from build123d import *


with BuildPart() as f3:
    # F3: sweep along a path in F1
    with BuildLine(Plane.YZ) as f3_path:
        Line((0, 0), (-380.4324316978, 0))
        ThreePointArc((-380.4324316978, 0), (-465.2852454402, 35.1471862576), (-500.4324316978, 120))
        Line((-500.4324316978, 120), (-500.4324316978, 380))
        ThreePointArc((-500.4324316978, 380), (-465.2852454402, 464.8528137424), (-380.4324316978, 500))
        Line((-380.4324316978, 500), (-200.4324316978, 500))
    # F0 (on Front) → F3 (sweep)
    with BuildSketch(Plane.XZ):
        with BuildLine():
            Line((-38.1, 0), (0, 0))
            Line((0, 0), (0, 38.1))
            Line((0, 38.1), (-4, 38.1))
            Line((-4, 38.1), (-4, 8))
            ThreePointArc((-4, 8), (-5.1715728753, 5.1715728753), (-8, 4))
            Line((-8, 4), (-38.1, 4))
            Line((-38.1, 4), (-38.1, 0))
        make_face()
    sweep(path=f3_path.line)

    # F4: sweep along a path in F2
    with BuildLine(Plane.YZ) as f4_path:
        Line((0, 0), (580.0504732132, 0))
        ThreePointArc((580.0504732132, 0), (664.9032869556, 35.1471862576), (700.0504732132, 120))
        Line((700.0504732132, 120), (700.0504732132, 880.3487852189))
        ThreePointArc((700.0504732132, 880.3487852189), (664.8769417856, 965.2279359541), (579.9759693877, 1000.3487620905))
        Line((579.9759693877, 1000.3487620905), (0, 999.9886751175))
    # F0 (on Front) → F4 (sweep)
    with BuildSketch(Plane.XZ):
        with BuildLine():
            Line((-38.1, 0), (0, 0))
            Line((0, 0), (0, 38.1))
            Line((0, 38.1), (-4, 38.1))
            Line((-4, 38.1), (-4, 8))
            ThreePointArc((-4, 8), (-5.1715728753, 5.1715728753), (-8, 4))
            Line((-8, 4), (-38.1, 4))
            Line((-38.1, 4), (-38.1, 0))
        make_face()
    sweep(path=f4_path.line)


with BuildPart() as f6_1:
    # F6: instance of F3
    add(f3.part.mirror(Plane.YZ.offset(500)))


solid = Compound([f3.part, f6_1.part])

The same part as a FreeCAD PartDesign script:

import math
import FreeCAD as App
import Part
import Sketcher
from FreeCAD import Vector

doc = App.newDocument("Part")
body = doc.addObject("PartDesign::Body", "Body")

# Sketch on XZ plane
sketch1 = body.newObject("Sketcher::SketchObject", "Sketch")
sketch1.AttachmentSupport = (doc.getObject("XZ_Plane"), [""])
sketch1.MapMode = "FlatFace"
sketch1.addGeometry([
    Part.LineSegment(Vector(-38.1, 0, 0), Vector(0, 0, 0)),  # 0
    Part.LineSegment(Vector(0, 0, 0), Vector(0, 38.1, 0)),  # 1
    Part.LineSegment(Vector(0, 38.1, 0), Vector(-4, 38.1, 0)),  # 2
    Part.LineSegment(Vector(-4, 38.1, 0), Vector(-4, 8, 0)),  # 3
    Part.ArcOfCircle(Part.Circle(Vector(-8, 8, 0), Vector(0, 0, 1), 4), math.radians(-90), math.radians(0)),  # 4
    Part.LineSegment(Vector(-8, 4, 0), Vector(-38.1, 4, 0)),  # 5
    Part.LineSegment(Vector(-38.1, 4, 0), Vector(-38.1, 0, 0)),  # 6
], False)
sketch1.addConstraint([
    Sketcher.Constraint("Coincident", 0, 2, 1, 1),
    Sketcher.Constraint("Coincident", 1, 2, 2, 1),
    Sketcher.Constraint("Coincident", 2, 2, 3, 1),
    Sketcher.Constraint("Tangent", 3, 2, 4, 2),
    Sketcher.Constraint("Tangent", 4, 1, 5, 1),
    Sketcher.Constraint("Coincident", 5, 2, 6, 1),
    Sketcher.Constraint("Coincident", 6, 2, 0, 1),
    Sketcher.Constraint("Horizontal", 0),
    Sketcher.Constraint("Vertical", 1),
    Sketcher.Constraint("Horizontal", 2),
    Sketcher.Constraint("Vertical", 3),
    Sketcher.Constraint("Horizontal", 5),
    Sketcher.Constraint("Vertical", 6),
    Sketcher.Constraint("Coincident", 0, 2, -1, 1),
    Sketcher.Constraint("Equal", 0, 1),
    Sketcher.Constraint("Equal", 5, 3),
    Sketcher.Constraint("Radius", 4, 4.0),
    Sketcher.Constraint("DistanceX", 2, 2, 2, 1, 4.0),
    Sketcher.Constraint("DistanceX", 0, 1, 0, 2, 38.1),
])

# Sketch on YZ plane
sketch2 = body.newObject("Sketcher::SketchObject", "Sketch001")
sketch2.AttachmentSupport = (doc.getObject("YZ_Plane"), [""])
sketch2.MapMode = "FlatFace"
sketch2.addGeometry([
    Part.LineSegment(Vector(0, 0, 0), Vector(-380, 0, 0)),  # 0
    Part.ArcOfCircle(Part.Circle(Vector(-380, 120, 0), Vector(0, 0, 1), 120), math.radians(180), math.radians(270)),  # 1
    Part.LineSegment(Vector(-500, 120, 0), Vector(-500, 380, 0)),  # 2
    Part.ArcOfCircle(Part.Circle(Vector(-380, 380, 0), Vector(0, 0, 1), 120), math.radians(90), math.radians(180)),  # 3
    Part.LineSegment(Vector(-380, 500, 0), Vector(-200, 500, 0)),  # 4
], False)
sketch2.addConstraint([
    Sketcher.Constraint("Tangent", 0, 2, 1, 2),
    Sketcher.Constraint("Tangent", 1, 1, 2, 1),
    Sketcher.Constraint("Tangent", 2, 2, 3, 2),
    Sketcher.Constraint("Tangent", 3, 1, 4, 1),
    Sketcher.Constraint("Horizontal", 0),
    Sketcher.Constraint("Vertical", 2),
    Sketcher.Constraint("Horizontal", 4),
    Sketcher.Constraint("Coincident", 0, 1, -1, 1),
    Sketcher.Constraint("Equal", 1, 3),
    Sketcher.Constraint("Radius", 1, 120.0),
    Sketcher.Constraint("DistanceX", 4, 1, 4, 2, 180.0),
    Sketcher.Constraint("DistanceY", 2, 1, 2, 2, 260.0),
    Sketcher.Constraint("DistanceX", 0, 2, 0, 1, 380.432432),
])
doc.recompute()

additivepipe = body.newObject("PartDesign::AdditivePipe", "AdditivePipe")
additivepipe.Profile = sketch1
additivepipe.Spine = (sketch2, ["Edge1", "Edge2", "Edge3", "Edge4", "Edge5"])

# Sketch on XZ plane
sketch3 = body.newObject("Sketcher::SketchObject", "Sketch002")
sketch3.AttachmentSupport = (doc.getObject("XZ_Plane"), [""])
sketch3.MapMode = "FlatFace"
sketch3.addGeometry([
    Part.LineSegment(Vector(-38.1, 0, 0), Vector(0, 0, 0)),  # 0
    Part.LineSegment(Vector(0, 0, 0), Vector(0, 38.1, 0)),  # 1
    Part.LineSegment(Vector(0, 38.1, 0), Vector(-4, 38.1, 0)),  # 2
    Part.LineSegment(Vector(-4, 38.1, 0), Vector(-4, 8, 0)),  # 3
    Part.ArcOfCircle(Part.Circle(Vector(-8, 8, 0), Vector(0, 0, 1), 4), math.radians(-90), math.radians(0)),  # 4
    Part.LineSegment(Vector(-8, 4, 0), Vector(-38.1, 4, 0)),  # 5
    Part.LineSegment(Vector(-38.1, 4, 0), Vector(-38.1, 0, 0)),  # 6
], False)
sketch3.addConstraint([
    Sketcher.Constraint("Coincident", 0, 2, 1, 1),
    Sketcher.Constraint("Coincident", 1, 2, 2, 1),
    Sketcher.Constraint("Coincident", 2, 2, 3, 1),
    Sketcher.Constraint("Tangent", 3, 2, 4, 2),
    Sketcher.Constraint("Tangent", 4, 1, 5, 1),
    Sketcher.Constraint("Coincident", 5, 2, 6, 1),
    Sketcher.Constraint("Coincident", 6, 2, 0, 1),
    Sketcher.Constraint("Horizontal", 0),
    Sketcher.Constraint("Vertical", 1),
    Sketcher.Constraint("Horizontal", 2),
    Sketcher.Constraint("Vertical", 3),
    Sketcher.Constraint("Horizontal", 5),
    Sketcher.Constraint("Vertical", 6),
    Sketcher.Constraint("Coincident", 0, 2, -1, 1),
    Sketcher.Constraint("Equal", 0, 1),
    Sketcher.Constraint("Equal", 5, 3),
    Sketcher.Constraint("Radius", 4, 4.0),
    Sketcher.Constraint("DistanceX", 2, 2, 2, 1, 4.0),
    Sketcher.Constraint("DistanceX", 0, 1, 0, 2, 38.1),
])

# Sketch on YZ plane
sketch4 = body.newObject("Sketcher::SketchObject", "Sketch003")
sketch4.AttachmentSupport = (doc.getObject("YZ_Plane"), [""])
sketch4.MapMode = "FlatFace"
sketch4.addGeometry([
    Part.LineSegment(Vector(0, 0, 0), Vector(580, 0, 0)),  # 0
    Part.ArcOfCircle(Part.Circle(Vector(580, 120, 0), Vector(0, 0, 1), 120), math.radians(-90), math.radians(0)),  # 1
    Part.LineSegment(Vector(700, 120, 0), Vector(700, 880, 0)),  # 2
    Part.ArcOfCircle(Part.Circle(Vector(580, 880, 0), Vector(0, 0, 1), 120), math.radians(0), math.radians(90)),  # 3
    Part.LineSegment(Vector(580, 1000, 0), Vector(0, 1000, 0)),  # 4
], False)
sketch4.addConstraint([
    Sketcher.Constraint("Tangent", 0, 2, 1, 1),
    Sketcher.Constraint("Tangent", 1, 2, 2, 1),
    Sketcher.Constraint("Tangent", 2, 2, 3, 1),
    Sketcher.Constraint("Tangent", 3, 2, 4, 1),
    Sketcher.Constraint("Horizontal", 0),
    Sketcher.Constraint("Vertical", 2),
    Sketcher.Constraint("Coincident", 0, 1, -1, 1),
    Sketcher.Constraint("Equal", 1, 3),
    Sketcher.Constraint("PointOnObject", 4, 2, -2),
    Sketcher.Constraint("Radius", 1, 120.0),
    Sketcher.Constraint("Distance", 4, 579.976081),
    Sketcher.Constraint("DistanceX", 0, 1, 0, 2, 580.050473),
    Sketcher.Constraint("DistanceY", 2, 1, 2, 2, 760.348785),
])
doc.recompute()

additivepipe2 = body.newObject("PartDesign::AdditivePipe", "AdditivePipe001")
additivepipe2.Profile = sketch3
additivepipe2.Spine = (sketch4, ["Edge1", "Edge2", "Edge3", "Edge4", "Edge5"])
body2 = doc.addObject("PartDesign::Body", "Body001")
doc.recompute()

mirroring = doc.addObject("Part::Mirroring", "Mirroring")
mirroring.Source = body
mirroring.Base = Vector(500, 0, 0)
mirroring.Normal = Vector(1, 0, 0)
body2.BaseFeature = mirroring
doc.recompute()
mirroring.Visibility = False

doc.recompute()
